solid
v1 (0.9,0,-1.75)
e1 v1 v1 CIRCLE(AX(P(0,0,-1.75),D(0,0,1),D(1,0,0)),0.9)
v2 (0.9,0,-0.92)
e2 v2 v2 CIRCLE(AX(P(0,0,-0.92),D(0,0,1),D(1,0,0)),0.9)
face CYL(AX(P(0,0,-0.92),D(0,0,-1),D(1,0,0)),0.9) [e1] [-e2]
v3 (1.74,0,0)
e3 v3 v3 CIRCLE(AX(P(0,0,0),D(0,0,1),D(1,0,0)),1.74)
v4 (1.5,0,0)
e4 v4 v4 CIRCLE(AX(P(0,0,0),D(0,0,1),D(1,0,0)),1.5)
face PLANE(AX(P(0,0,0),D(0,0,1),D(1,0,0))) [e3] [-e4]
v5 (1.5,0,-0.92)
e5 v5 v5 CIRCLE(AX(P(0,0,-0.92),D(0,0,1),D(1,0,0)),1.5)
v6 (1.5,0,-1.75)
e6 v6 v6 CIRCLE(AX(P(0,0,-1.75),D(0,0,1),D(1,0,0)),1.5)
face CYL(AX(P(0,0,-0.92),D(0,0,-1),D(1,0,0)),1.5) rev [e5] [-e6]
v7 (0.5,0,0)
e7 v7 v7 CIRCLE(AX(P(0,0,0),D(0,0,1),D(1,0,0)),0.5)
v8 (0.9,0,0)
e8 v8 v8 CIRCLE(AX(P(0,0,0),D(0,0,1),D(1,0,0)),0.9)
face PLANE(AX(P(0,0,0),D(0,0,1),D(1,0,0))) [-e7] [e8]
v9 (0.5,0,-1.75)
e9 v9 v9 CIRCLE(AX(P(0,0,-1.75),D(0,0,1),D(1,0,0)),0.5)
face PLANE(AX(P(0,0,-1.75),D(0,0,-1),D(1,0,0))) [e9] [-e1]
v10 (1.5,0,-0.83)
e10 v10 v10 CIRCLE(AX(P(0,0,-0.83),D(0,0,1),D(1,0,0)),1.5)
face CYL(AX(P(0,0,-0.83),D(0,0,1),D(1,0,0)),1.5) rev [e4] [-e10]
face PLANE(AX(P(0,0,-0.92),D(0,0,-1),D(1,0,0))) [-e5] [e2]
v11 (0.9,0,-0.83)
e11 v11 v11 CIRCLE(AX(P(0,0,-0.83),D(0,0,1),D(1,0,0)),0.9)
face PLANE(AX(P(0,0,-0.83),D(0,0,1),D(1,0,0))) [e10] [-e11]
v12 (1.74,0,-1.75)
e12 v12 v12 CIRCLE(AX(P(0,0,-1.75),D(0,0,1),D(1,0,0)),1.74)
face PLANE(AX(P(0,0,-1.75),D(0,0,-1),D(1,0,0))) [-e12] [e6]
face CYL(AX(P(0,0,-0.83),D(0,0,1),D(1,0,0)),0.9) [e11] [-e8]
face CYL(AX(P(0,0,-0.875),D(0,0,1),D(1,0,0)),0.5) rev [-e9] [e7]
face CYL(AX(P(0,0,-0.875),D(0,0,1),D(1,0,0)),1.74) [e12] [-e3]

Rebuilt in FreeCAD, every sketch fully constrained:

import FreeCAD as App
import Part
import Sketcher

V = App.Vector

doc = App.newDocument("Part")
params = doc.addObject("Spreadsheet::Sheet", "Params")
for row, (alias, value) in enumerate([
    ("sketch1_diameter", "3.48 mm"),
    ("pad1_length", "0.875 mm"),
    ("sketch2_diameter", "1 mm"),
    ("sketch3_diameter", "3 mm"),
    ("sketch3_diameter2", "1.8 mm"),
    ("pocket2_length", "0.83 mm"),
], start=1):
    params.set(f"A{row}", alias)
    params.set(f"B{row}", "=" + value)
    params.setAlias(f"B{row}", alias)

body = doc.addObject("PartDesign::Body", "Body")

# Sketch on XY plane
sketch1 = doc.addObject("Sketcher::SketchObject", "Sketch")
body.addObject(sketch1)
sketch1.AttachmentSupport = (doc.XY_Plane, [""])
sketch1.MapMode = "FlatFace"
sketch1.addGeometry(Part.Circle(V(0, 0, 0), V(0, 0, 1), 1.74), False)
sketch1.addConstraint([
    Sketcher.Constraint("Coincident", 0, 3, -1, 1),
    Sketcher.Constraint("Diameter", 0, 3.48),
])
sketch1.setExpression("Constraints[1]", "Params.sketch1_diameter")
pad1 = doc.addObject("PartDesign::Pad", "Pad")
body.addObject(pad1)
pad1.Profile = sketch1
pad1.setExpression("Length", "Params.pad1_length")
pad1.Reversed = True

# Sketch on XY plane
sketch2 = doc.addObject("Sketcher::SketchObject", "Sketch001")
body.addObject(sketch2)
sketch2.AttachmentSupport = (doc.XY_Plane, [""])
sketch2.MapMode = "FlatFace"
sketch2.addGeometry(Part.Circle(V(0, 0, 0), V(0, 0, 1), 0.5), False)
sketch2.addConstraint([
    Sketcher.Constraint("Coincident", 0, 3, -1, 1),
    Sketcher.Constraint("Diameter", 0, 1.0),
])
sketch2.setExpression("Constraints[1]", "Params.sketch2_diameter")
pocket1 = doc.addObject("PartDesign::Pocket", "Pocket")
body.addObject(pocket1)
pocket1.Profile = sketch2
pocket1.Type = "ThroughAll"

# Sketch on XY plane
sketch3 = doc.addObject("Sketcher::SketchObject", "Sketch002")
body.addObject(sketch3)
sketch3.AttachmentSupport = (doc.XY_Plane, [""])
sketch3.MapMode = "FlatFace"
sketch3.addGeometry([
    Part.Circle(V(0, 0, 0), V(0, 0, 1), 1.5),
    Part.Circle(V(0, 0, 0), V(0, 0, 1), 0.9),
], False)
sketch3.addConstraint([
    Sketcher.Constraint("Coincident", 0, 3, -1, 1),
    Sketcher.Constraint("Coincident", 1, 3, -1, 1),
    Sketcher.Constraint("Diameter", 0, 3.0),
    Sketcher.Constraint("Diameter", 1, 1.8),
])
sketch3.setExpression("Constraints[2]", "Params.sketch3_diameter")
sketch3.setExpression("Constraints[3]", "Params.sketch3_diameter2")
pocket2 = doc.addObject("PartDesign::Pocket", "Pocket001")
body.addObject(pocket2)
pocket2.Profile = sketch3
pocket2.setExpression("Length", "Params.pocket2_length")
body2 = doc.addObject("PartDesign::Body", "Body001")
doc.recompute()

body2.BaseFeature = body
doc.recompute()

mirroring = doc.addObject("Part::Mirroring", "Mirroring")
mirroring.Source = body
mirroring.Base = V(0, 0, -0.875)
mirroring.Normal = V(0, 0, 1)
body3 = doc.addObject("PartDesign::Body", "Body002")
body3.BaseFeature = mirroring
boolean = doc.addObject("PartDesign::Boolean", "Boolean")
body2.addObject(boolean)
boolean.Type = "Fuse"
boolean.addObjects([body3])
doc.recompute()
mirroring.Visibility = False

doc.recompute()
